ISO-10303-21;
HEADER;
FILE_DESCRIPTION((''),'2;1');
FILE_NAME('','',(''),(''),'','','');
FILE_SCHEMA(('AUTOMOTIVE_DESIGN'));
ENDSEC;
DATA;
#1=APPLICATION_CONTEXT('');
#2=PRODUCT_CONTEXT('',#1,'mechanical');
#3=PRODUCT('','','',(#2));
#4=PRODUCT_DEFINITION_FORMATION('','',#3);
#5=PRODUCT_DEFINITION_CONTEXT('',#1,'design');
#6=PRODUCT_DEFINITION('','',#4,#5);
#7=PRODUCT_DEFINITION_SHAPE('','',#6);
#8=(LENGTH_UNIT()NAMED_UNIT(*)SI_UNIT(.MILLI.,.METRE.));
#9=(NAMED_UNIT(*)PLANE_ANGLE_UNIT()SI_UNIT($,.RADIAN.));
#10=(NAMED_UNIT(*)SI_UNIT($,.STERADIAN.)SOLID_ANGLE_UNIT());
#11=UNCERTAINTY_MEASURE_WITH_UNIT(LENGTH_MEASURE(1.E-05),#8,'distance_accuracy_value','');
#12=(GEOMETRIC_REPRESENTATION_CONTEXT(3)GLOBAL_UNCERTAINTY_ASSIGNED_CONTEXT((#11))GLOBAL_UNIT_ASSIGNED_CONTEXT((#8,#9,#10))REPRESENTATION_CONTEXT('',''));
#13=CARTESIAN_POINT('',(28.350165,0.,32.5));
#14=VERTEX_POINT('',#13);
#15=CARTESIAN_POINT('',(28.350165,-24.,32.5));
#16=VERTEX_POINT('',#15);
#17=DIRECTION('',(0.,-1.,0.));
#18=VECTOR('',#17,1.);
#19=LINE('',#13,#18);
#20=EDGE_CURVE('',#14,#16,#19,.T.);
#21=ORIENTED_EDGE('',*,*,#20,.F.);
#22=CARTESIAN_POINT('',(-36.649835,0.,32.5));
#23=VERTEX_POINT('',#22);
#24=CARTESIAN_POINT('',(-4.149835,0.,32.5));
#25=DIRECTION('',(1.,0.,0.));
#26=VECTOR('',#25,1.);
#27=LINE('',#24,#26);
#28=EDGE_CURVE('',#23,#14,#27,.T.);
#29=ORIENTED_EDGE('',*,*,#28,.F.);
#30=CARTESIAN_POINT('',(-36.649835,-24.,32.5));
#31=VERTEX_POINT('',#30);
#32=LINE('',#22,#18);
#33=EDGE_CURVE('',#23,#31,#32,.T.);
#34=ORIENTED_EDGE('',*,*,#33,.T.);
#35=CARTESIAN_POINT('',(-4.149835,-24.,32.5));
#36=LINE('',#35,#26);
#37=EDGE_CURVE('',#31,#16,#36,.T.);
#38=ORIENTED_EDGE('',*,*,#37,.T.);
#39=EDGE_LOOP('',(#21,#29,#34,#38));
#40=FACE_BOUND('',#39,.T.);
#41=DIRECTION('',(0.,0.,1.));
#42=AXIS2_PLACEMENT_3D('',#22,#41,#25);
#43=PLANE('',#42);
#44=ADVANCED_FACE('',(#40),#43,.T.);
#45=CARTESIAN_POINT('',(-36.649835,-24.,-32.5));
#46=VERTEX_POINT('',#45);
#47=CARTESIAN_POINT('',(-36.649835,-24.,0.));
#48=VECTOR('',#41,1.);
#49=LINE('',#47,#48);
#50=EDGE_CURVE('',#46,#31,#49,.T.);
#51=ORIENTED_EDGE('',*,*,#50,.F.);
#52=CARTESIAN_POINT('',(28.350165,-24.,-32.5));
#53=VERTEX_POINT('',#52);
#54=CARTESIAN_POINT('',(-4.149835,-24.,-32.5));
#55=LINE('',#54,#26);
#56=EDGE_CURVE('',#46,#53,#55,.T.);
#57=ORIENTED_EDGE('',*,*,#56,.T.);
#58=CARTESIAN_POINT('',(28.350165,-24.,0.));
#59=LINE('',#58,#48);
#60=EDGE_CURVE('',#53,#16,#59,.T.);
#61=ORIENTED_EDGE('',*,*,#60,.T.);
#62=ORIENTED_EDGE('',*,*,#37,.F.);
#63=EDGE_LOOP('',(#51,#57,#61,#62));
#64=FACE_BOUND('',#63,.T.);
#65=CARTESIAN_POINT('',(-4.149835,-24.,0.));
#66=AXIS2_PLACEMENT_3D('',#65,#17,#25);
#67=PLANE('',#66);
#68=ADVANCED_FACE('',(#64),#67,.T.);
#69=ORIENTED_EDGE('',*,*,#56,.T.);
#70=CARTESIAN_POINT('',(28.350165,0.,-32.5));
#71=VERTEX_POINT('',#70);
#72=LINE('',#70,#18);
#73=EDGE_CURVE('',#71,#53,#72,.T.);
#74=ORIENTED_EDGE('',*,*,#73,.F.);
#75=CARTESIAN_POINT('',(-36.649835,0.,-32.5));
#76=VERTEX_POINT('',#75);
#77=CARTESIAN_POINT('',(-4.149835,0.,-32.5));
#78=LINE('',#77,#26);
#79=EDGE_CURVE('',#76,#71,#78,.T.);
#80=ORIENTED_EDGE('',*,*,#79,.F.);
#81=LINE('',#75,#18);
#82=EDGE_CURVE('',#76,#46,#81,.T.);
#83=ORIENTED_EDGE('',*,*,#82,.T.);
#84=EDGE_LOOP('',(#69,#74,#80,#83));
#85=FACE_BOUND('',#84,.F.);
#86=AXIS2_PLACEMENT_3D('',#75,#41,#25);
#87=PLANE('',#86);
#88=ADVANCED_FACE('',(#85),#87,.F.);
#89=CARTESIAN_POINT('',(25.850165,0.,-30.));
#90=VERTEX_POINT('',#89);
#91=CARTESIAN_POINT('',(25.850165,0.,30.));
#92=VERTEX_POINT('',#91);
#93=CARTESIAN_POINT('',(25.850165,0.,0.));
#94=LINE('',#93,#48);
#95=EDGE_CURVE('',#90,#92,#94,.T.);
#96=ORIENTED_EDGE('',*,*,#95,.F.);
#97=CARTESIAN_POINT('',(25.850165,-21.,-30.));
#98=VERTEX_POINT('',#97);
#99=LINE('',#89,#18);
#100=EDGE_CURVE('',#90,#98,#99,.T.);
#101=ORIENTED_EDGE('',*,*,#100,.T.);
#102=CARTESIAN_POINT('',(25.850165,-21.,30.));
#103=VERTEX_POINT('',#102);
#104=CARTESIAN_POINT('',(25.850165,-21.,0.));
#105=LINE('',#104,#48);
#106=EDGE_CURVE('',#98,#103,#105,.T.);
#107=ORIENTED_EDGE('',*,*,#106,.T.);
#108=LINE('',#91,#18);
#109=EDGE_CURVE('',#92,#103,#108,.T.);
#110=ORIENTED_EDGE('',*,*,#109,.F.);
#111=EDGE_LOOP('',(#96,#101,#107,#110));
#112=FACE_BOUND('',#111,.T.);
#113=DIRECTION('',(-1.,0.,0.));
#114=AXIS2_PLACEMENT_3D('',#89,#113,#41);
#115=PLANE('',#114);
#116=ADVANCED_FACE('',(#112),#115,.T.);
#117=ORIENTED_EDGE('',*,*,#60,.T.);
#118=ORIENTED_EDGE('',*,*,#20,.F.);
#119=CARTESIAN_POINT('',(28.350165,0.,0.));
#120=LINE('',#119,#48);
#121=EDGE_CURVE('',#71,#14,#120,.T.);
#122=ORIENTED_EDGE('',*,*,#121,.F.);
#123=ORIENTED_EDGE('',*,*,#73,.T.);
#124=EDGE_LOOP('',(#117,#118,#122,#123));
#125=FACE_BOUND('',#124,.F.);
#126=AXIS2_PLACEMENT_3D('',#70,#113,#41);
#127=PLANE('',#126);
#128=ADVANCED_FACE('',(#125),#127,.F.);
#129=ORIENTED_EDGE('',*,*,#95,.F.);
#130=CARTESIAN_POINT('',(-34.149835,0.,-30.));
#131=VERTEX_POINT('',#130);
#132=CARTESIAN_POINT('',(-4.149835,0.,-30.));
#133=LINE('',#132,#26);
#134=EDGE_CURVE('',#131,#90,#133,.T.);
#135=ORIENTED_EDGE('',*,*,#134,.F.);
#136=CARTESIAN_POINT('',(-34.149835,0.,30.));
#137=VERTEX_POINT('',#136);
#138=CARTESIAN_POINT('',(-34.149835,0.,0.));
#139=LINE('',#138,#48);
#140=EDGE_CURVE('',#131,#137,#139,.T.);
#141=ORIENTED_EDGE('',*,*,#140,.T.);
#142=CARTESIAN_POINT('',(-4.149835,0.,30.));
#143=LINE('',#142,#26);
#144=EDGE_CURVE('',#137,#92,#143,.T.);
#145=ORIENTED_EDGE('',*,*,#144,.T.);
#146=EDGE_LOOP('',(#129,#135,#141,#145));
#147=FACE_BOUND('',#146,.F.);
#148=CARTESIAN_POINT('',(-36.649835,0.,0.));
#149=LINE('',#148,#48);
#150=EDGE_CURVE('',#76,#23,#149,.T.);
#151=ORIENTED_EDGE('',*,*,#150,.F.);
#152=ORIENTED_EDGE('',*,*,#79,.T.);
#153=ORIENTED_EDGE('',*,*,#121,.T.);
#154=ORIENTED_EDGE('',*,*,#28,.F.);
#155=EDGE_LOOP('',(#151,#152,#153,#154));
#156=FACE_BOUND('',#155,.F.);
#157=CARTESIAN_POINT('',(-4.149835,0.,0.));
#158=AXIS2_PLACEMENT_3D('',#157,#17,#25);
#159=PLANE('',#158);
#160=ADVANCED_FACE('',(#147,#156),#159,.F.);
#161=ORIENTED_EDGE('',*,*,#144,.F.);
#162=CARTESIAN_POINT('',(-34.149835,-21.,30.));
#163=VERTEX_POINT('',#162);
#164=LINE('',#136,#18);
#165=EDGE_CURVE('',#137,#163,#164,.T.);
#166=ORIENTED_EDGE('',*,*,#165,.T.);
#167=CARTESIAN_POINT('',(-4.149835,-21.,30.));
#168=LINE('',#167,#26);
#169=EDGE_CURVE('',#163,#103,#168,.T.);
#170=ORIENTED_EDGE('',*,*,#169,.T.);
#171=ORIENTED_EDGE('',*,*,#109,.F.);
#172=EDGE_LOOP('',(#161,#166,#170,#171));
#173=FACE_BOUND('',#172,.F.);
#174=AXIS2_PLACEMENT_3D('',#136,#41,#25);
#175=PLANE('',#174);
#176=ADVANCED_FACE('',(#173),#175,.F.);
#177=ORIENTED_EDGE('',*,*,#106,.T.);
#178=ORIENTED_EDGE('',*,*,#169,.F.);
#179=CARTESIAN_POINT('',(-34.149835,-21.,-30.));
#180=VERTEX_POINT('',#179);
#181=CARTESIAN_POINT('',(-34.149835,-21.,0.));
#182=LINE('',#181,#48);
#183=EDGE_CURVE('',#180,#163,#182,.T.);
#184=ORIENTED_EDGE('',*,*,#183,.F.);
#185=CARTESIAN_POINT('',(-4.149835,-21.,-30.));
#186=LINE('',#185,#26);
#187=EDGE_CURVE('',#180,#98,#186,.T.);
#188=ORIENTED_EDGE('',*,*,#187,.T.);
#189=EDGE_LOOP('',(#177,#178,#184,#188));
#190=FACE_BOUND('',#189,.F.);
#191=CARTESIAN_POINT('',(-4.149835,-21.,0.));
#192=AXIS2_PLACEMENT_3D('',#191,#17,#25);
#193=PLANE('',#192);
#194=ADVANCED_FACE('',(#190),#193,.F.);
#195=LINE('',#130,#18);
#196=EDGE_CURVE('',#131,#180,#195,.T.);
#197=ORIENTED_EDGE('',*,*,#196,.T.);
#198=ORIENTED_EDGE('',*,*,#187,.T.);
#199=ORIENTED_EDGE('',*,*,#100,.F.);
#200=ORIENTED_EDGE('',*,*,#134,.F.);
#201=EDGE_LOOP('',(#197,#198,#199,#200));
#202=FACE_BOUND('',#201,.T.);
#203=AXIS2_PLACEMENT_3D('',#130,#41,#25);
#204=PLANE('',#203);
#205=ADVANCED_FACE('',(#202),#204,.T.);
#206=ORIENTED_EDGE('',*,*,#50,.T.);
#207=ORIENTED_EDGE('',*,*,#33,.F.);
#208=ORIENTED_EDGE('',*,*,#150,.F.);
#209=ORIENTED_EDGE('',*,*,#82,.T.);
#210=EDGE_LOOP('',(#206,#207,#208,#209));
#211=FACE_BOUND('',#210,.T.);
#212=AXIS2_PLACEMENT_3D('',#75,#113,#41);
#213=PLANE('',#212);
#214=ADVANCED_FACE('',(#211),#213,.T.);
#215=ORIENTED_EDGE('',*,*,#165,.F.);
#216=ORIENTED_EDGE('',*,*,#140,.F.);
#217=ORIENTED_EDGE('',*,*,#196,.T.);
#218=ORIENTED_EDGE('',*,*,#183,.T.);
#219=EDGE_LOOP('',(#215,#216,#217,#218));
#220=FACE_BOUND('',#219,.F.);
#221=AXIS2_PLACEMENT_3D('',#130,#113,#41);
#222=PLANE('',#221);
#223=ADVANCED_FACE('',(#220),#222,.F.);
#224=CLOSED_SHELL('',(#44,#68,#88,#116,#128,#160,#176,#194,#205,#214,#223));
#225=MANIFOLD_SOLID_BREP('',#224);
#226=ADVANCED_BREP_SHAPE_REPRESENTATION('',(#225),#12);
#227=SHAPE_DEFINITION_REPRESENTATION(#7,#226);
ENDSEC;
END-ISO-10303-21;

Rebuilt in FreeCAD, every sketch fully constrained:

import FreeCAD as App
import Part
import Sketcher
from FreeCAD import Vector


def add_polygon(sketch, points):
    """Adds a closed chain of lines whose ends are joined by coincident constraints."""
    first, n = sketch.GeometryCount, len(points)
    for a, b in zip(points, points[1:] + points[:1]):
        sketch.addGeometry(Part.LineSegment(App.Vector(*a, 0), App.Vector(*b, 0)), False)
    for i in range(n):
        sketch.addConstraint(Sketcher.Constraint("Coincident", first + i, 2, first + (i + 1) % n, 1))

doc = App.newDocument("Part")
body = doc.addObject("PartDesign::Body", "Body")

# Sketch on XZ plane
sketch1 = doc.addObject("Sketcher::SketchObject", "Sketch")
body.addObject(sketch1)
sketch1.AttachmentSupport = (doc.XZ_Plane, [""])
sketch1.MapMode = "FlatFace"
add_polygon(sketch1, [(-36.649835, 32.5), (-36.649835, -32.5), (28.350165, -32.5), (28.350165, 32.5)])  # lines 0-3
sketch1.addConstraint(Sketcher.Constraint("Vertical", 0))
sketch1.addConstraint(Sketcher.Constraint("Horizontal", 1))
sketch1.addConstraint(Sketcher.Constraint("Vertical", 2))
sketch1.addConstraint(Sketcher.Constraint("Horizontal", 3))
sketch1.addConstraint(Sketcher.Constraint("Equal", 3, 0))
sketch1.addConstraint(Sketcher.Constraint("DistanceX", 1, 1, 1, 2, 65.0))
sketch1.addConstraint(Sketcher.Constraint("DistanceY", 0, 2, -1, 1, 32.5))
sketch1.addConstraint(Sketcher.Constraint("DistanceX", 0, 2, -1, 1, 36.649835))
pad1 = doc.addObject("PartDesign::Pad", "Pad")
body.addObject(pad1)
pad1.Profile = sketch1
pad1.Length = 24

# Sketch on XZ plane
sketch2 = doc.addObject("Sketcher::SketchObject", "Sketch001")
body.addObject(sketch2)
sketch2.AttachmentSupport = (doc.XZ_Plane, [""])
sketch2.MapMode = "FlatFace"
add_polygon(sketch2, [(-34.149835, 30), (-34.149835, -30), (25.850165, -30), (25.850165, 30)])  # lines 0-3
sketch2.addConstraint(Sketcher.Constraint("Vertical", 0))
sketch2.addConstraint(Sketcher.Constraint("Horizontal", 1))
sketch2.addConstraint(Sketcher.Constraint("Vertical", 2))
sketch2.addConstraint(Sketcher.Constraint("Horizontal", 3))
sketch2.addConstraint(Sketcher.Constraint("Equal", 3, 0))
sketch2.addConstraint(Sketcher.Constraint("DistanceX", 1, 1, 1, 2, 60.0))
sketch2.addConstraint(Sketcher.Constraint("DistanceY", 0, 2, -1, 1, 30.0))
sketch2.addConstraint(Sketcher.Constraint("DistanceX", 0, 2, -1, 1, 34.149835))
pocket1 = doc.addObject("PartDesign::Pocket", "Pocket")
body.addObject(pocket1)
pocket1.Profile = sketch2
pocket1.Length = 21
pocket1.Reversed = True

doc.recompute()
